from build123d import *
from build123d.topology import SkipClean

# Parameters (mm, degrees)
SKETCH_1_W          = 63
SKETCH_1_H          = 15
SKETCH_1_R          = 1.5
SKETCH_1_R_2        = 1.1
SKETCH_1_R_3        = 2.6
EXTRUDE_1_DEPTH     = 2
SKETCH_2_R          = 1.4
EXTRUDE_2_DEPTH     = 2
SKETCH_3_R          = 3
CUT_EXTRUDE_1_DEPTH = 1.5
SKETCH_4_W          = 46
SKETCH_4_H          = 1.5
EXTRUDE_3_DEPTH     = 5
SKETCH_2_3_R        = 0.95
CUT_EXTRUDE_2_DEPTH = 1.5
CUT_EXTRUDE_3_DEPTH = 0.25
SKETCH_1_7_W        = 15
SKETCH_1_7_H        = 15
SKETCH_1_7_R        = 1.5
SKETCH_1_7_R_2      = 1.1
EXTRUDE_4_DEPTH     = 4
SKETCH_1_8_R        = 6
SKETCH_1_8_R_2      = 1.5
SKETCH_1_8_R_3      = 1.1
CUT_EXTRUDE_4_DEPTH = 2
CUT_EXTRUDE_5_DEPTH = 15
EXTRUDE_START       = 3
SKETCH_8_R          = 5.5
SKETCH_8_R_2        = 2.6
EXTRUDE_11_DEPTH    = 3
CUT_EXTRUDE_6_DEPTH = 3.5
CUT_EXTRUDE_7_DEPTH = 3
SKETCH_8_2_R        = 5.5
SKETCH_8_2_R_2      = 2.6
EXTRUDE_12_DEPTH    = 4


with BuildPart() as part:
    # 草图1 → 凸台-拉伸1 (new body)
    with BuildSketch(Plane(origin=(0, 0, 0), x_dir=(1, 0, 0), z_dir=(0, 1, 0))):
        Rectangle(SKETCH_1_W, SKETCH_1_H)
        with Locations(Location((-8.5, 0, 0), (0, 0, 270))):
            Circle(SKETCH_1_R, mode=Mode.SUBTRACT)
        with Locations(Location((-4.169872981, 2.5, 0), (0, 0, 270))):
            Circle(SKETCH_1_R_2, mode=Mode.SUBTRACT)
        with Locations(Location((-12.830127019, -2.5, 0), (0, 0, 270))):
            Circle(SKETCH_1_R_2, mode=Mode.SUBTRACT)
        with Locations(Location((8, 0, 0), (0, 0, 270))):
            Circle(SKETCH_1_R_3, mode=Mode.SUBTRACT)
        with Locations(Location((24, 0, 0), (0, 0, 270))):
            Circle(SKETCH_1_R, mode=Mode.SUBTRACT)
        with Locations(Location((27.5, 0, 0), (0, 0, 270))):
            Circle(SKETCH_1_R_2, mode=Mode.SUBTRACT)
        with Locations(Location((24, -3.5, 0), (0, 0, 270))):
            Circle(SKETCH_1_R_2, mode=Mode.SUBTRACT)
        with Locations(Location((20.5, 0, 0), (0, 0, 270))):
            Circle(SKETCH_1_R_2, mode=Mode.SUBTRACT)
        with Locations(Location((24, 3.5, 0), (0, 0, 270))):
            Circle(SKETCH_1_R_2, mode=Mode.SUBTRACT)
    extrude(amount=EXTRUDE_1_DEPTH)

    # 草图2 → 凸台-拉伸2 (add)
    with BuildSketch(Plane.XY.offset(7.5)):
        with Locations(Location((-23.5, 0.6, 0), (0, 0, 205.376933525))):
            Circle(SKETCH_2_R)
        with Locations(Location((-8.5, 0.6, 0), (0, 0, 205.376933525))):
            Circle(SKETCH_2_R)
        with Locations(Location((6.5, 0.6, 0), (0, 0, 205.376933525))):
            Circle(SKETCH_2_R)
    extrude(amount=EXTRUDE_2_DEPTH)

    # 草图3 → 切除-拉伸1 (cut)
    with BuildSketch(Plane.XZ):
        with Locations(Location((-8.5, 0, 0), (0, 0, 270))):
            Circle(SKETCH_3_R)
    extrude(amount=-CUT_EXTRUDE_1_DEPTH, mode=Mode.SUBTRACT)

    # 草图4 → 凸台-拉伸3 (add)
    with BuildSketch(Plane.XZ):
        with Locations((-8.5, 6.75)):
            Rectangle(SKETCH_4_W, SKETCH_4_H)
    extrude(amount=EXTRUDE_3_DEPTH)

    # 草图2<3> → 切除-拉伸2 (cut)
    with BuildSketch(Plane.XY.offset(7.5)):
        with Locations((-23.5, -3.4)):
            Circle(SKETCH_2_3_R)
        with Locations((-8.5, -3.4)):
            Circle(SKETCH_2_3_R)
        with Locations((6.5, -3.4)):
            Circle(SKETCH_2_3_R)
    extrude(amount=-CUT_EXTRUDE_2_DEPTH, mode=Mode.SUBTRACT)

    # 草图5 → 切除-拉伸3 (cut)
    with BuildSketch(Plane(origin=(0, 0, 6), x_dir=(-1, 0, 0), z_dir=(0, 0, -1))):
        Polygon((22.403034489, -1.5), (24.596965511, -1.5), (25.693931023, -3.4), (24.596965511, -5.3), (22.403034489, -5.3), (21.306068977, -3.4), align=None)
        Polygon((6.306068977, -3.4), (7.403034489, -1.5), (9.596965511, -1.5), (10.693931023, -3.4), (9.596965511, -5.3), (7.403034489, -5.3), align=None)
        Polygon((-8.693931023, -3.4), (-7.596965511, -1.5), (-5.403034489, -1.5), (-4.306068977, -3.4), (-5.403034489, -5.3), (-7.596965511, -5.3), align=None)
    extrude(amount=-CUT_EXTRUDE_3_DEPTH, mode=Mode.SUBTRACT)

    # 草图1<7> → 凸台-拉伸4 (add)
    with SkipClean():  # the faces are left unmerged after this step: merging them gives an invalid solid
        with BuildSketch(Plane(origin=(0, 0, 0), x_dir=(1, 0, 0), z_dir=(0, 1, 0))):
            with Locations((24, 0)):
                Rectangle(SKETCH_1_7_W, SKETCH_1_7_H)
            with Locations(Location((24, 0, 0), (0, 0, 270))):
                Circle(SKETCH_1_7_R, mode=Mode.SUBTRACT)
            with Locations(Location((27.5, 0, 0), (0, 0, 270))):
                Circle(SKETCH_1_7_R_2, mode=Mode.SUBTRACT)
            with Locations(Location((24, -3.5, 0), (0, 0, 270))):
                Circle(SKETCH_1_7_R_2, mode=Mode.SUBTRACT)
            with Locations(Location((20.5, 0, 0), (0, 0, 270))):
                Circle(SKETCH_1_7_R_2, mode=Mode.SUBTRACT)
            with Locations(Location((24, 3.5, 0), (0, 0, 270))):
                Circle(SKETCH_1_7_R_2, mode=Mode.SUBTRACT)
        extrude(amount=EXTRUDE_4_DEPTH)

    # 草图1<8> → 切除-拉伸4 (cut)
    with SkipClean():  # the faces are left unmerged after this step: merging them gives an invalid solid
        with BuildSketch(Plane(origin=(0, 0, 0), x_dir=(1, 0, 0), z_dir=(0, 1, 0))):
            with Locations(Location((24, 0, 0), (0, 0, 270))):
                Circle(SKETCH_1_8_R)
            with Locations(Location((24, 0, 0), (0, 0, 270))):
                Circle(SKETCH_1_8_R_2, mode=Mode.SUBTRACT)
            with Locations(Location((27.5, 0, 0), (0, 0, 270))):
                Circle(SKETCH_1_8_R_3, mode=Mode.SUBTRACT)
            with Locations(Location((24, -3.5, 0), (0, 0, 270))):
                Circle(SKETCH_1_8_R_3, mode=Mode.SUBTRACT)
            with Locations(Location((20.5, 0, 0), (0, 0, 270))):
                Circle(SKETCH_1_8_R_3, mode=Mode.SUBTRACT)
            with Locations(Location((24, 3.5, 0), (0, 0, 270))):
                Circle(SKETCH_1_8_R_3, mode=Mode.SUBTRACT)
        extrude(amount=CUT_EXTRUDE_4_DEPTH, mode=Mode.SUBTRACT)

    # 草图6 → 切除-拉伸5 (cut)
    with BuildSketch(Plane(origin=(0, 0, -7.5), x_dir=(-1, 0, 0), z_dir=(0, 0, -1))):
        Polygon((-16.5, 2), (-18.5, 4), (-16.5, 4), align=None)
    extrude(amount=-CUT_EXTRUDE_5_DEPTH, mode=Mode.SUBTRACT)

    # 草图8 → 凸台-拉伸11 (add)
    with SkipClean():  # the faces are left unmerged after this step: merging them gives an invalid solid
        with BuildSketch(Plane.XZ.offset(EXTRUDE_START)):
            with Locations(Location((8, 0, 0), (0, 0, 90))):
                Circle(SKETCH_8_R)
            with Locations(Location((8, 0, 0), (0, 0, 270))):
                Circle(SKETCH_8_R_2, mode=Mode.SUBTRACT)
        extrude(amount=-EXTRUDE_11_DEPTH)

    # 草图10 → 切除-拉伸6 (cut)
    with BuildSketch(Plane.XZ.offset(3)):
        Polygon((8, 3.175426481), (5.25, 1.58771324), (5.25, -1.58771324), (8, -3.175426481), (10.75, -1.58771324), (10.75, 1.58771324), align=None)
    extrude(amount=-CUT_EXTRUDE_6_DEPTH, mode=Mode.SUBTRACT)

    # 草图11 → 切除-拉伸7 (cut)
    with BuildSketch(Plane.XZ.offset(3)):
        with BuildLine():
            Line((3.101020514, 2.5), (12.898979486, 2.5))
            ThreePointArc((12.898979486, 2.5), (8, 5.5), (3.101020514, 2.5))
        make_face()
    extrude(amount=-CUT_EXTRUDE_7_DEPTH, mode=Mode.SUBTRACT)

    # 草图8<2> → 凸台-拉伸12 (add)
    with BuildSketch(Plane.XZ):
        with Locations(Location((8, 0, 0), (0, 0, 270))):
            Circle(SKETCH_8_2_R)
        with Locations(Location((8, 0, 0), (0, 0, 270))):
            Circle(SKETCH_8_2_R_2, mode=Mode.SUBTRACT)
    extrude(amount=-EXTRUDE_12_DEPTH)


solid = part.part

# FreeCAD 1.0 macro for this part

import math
import FreeCAD as App
import Part
import Sketcher
Q = App.Units.Quantity

doc = App.newDocument("Part")
body = doc.addObject("PartDesign::Body", "Body")

sketch1 = doc.addObject("Sketcher::SketchObject", "Sketch")
body.addObject(sketch1)
sketch1.AttachmentSupport = (doc.XZ_Plane, [""])
sketch1.MapMode = "FlatFace"
sketch1.addGeometry([
    Part.LineSegment(App.Vector(-31.5, -7.5, 0), App.Vector(-31.5, 7.5, 0)),
    Part.LineSegment(App.Vector(-31.5, 7.5, 0), App.Vector(31.5, 7.5, 0)),
    Part.LineSegment(App.Vector(31.5, 7.5, 0), App.Vector(31.5, -7.5, 0)),
    Part.LineSegment(App.Vector(31.5, -7.5, 0), App.Vector(-31.5, -7.5, 0)),
    Part.Circle(App.Vector(-12.8, 2.5, 0), App.Vector(0, 0, 1), 1.1),
    Part.Circle(App.Vector(24, 3.5, 0), App.Vector(0, 0, 1), 1.1),
    Part.Circle(App.Vector(-8.5, 0, 0), App.Vector(0, 0, 1), 1.5),
    Part.Circle(App.Vector(-4.2, -2.5, 0), App.Vector(0, 0, 1), 1.1),
    Part.Circle(App.Vector(8, 0, 0), App.Vector(0, 0, 1), 2.6),
    Part.Circle(App.Vector(20.5, 0, 0), App.Vector(0, 0, 1), 1.1),
    Part.Circle(App.Vector(24, 0, 0), App.Vector(0, 0, 1), 1.5),
    Part.Circle(App.Vector(27.5, 0, 0), App.Vector(0, 0, 1), 1.1),
    Part.Circle(App.Vector(24, -3.5, 0), App.Vector(0, 0, 1), 1.1),
], False)
sketch1.addConstraint([
    Sketcher.Constraint("Coincident", 0, 2, 1, 1),
    Sketcher.Constraint("Coincident", 1, 2, 2, 1),
    Sketcher.Constraint("Coincident", 2, 2, 3, 1),
    Sketcher.Constraint("Coincident", 3, 2, 0, 1),
    Sketcher.Constraint("Vertical", 0),
    Sketcher.Constraint("Horizontal", 1),
    Sketcher.Constraint("Vertical", 2),
    Sketcher.Constraint("Horizontal", 3),
    Sketcher.Constraint("Equal", 4, 5),
    Sketcher.Constraint("Equal", 5, 7),
    Sketcher.Constraint("Equal", 7, 9),
    Sketcher.Constraint("Equal", 6, 10),
    Sketcher.Constraint("Equal", 9, 11),
    Sketcher.Constraint("Equal", 11, 12),
    Sketcher.Constraint("Symmetric", 0, 2, 2, 2, -1, 1),
    Sketcher.Constraint("Symmetric", 5, 3, 12, 3, -1),
    Sketcher.Constraint("PointOnObject", 6, 3, -1),
    Sketcher.Constraint("PointOnObject", 8, 3, -1),
    Sketcher.Constraint("PointOnObject", 9, 3, -1),
    Sketcher.Constraint("PointOnObject", 10, 3, -1),
    Sketcher.Constraint("PointOnObject", 11, 3, -1),
    Sketcher.Constraint("Vertical", 5, 3, 10, 3),
    Sketcher.Constraint("Diameter", 6, Q("3 mm")),
    Sketcher.Constraint("Diameter", 4, Q("2.2 mm")),
    Sketcher.Constraint("Diameter", 8, Q("5.2 mm")),
    Sketcher.Constraint("DistanceX", 1, 1, 1, 2, Q("63 mm")),
    Sketcher.Constraint("DistanceY", 0, 1, 0, 2, Q("15 mm")),
    Sketcher.Constraint("DistanceX", -1, 1, 5, 3, Q("24 mm")),
    Sketcher.Constraint("DistanceX", -1, 1, 8, 3, Q("8 mm")),
    Sketcher.Constraint("DistanceY", 4, 3, 5, 3, Q("1 mm")),
    Sketcher.Constraint("DistanceY", 7, 3, 4, 3, Q("5 mm")),
    Sketcher.Constraint("DistanceX", 6, 3, 9, 3, Q("29 mm")),
    Sketcher.Constraint("DistanceX", 9, 3, 11, 3, Q("7 mm")),
    Sketcher.Constraint("DistanceY", 12, 3, 5, 3, Q("7 mm")),
    Sketcher.Constraint("DistanceX", 0, 2, 6, 3, Q("23 mm")),
    Sketcher.Constraint("DistanceX", 4, 3, -1, 1, Q("12.830127 mm")),
    Sketcher.Constraint("DistanceX", 7, 3, -1, 1, Q("4.169873 mm")),
])
pad1 = doc.addObject("PartDesign::Pad", "Pad")
body.addObject(pad1)
pad1.Profile = sketch1
pad1.Length = 2
pad1.Reversed = True

sketch2 = doc.addObject("Sketcher::SketchObject", "Sketch001")
body.addObject(sketch2)
sketch2.AttachmentSupport = (doc.XY_Plane, [""])
sketch2.MapMode = "FlatFace"
sketch2.AttachmentOffset = App.Placement(App.Vector(0, 0, 7.5), App.Rotation())
sketch2.addGeometry([
    Part.Circle(App.Vector(-23.5, 0.6, 0), App.Vector(0, 0, 1), 1.4),
    Part.Circle(App.Vector(-8.5, 0.6, 0), App.Vector(0, 0, 1), 1.4),
    Part.Circle(App.Vector(6.5, 0.6, 0), App.Vector(0, 0, 1), 1.4),
], False)
sketch2.addConstraint([
    Sketcher.Constraint("Equal", 0, 1),
    Sketcher.Constraint("Equal", 1, 2),
    Sketcher.Constraint("Horizontal", 0, 3, 1, 3),
    Sketcher.Constraint("Horizontal", 1, 3, 2, 3),
    Sketcher.Constraint("Diameter", 0, Q("2.8 mm")),
    Sketcher.Constraint("DistanceX", 0, 3, 1, 3, Q("15 mm")),
    Sketcher.Constraint("DistanceX", 1, 3, 2, 3, Q("15 mm")),
    Sketcher.Constraint("DistanceX", 0, 3, -1, 1, Q("23.5 mm")),
    Sketcher.Constraint("DistanceY", -1, 1, 0, 3, Q("0.6 mm")),
])
pad2 = doc.addObject("PartDesign::Pad", "Pad001")
body.addObject(pad2)
pad2.Profile = sketch2
pad2.Length = 2

sketch3 = doc.addObject("Sketcher::SketchObject", "Sketch002")
body.addObject(sketch3)
sketch3.AttachmentSupport = (doc.XZ_Plane, [""])
sketch3.MapMode = "FlatFace"
sketch3.addGeometry(Part.Circle(App.Vector(-8.5, 0, 0), App.Vector(0, 0, 1), 3), False)
sketch3.addConstraint([
    Sketcher.Constraint("PointOnObject", 0, 3, -1),
    Sketcher.Constraint("Diameter", 0, Q("6 mm")),
    Sketcher.Constraint("DistanceX", 0, 3, -1, 1, Q("8.5 mm")),
])
pocket1 = doc.addObject("PartDesign::Pocket", "Pocket")
body.addObject(pocket1)
pocket1.Profile = sketch3
pocket1.Length = 1.5

sketch4 = doc.addObject("Sketcher::SketchObject", "Sketch003")
body.addObject(sketch4)
sketch4.AttachmentSupport = (doc.XZ_Plane, [""])
sketch4.MapMode = "FlatFace"
sketch4.addGeometry([
    Part.LineSegment(App.Vector(-31.5, 7.5, 0), App.Vector(-31.5, 6, 0)),
    Part.LineSegment(App.Vector(-31.5, 6, 0), App.Vector(14.5, 6, 0)),
    Part.LineSegment(App.Vector(14.5, 6, 0), App.Vector(14.5, 7.5, 0)),
    Part.LineSegment(App.Vector(14.5, 7.5, 0), App.Vector(-31.5, 7.5, 0)),
], False)
sketch4.addConstraint([
    Sketcher.Constraint("Coincident", 0, 2, 1, 1),
    Sketcher.Constraint("Coincident", 1, 2, 2, 1),
    Sketcher.Constraint("Coincident", 2, 2, 3, 1),
    Sketcher.Constraint("Coincident", 3, 2, 0, 1),
    Sketcher.Constraint("Vertical", 0),
    Sketcher.Constraint("Horizontal", 1),
    Sketcher.Constraint("Vertical", 2),
    Sketcher.Constraint("Horizontal", 3),
    Sketcher.Constraint("DistanceX", 1, 1, 1, 2, Q("46 mm")),
    Sketcher.Constraint("DistanceY", 0, 2, 0, 1, Q("1.5 mm")),
    Sketcher.Constraint("DistanceY", -1, 1, 0, 2, Q("6 mm")),
    Sketcher.Constraint("DistanceX", 0, 2, -1, 1, Q("31.5 mm")),
])
pad3 = doc.addObject("PartDesign::Pad", "Pad002")
body.addObject(pad3)
pad3.Profile = sketch4
pad3.Length = 5

sketch5 = doc.addObject("Sketcher::SketchObject", "Sketch004")
body.addObject(sketch5)
sketch5.AttachmentSupport = (doc.XY_Plane, [""])
sketch5.MapMode = "FlatFace"
sketch5.AttachmentOffset = App.Placement(App.Vector(0, 0, 7.5), App.Rotation())
sketch5.addGeometry([
    Part.Circle(App.Vector(-23.5, -3.4, 0), App.Vector(0, 0, 1), 0.9),
    Part.Circle(App.Vector(-8.5, -3.4, 0), App.Vector(0, 0, 1), 0.9),
    Part.Circle(App.Vector(6.5, -3.4, 0), App.Vector(0, 0, 1), 0.9),
], False)
sketch5.addConstraint([
    Sketcher.Constraint("Equal", 0, 1),
    Sketcher.Constraint("Equal", 1, 2),
    Sketcher.Constraint("Horizontal", 0, 3, 1, 3),
    Sketcher.Constraint("Horizontal", 1, 3, 2, 3),
    Sketcher.Constraint("Diameter", 0, Q("1.9 mm")),
    Sketcher.Constraint("DistanceX", 0, 3, 1, 3, Q("15 mm")),
    Sketcher.Constraint("DistanceX", 1, 3, 2, 3, Q("15 mm")),
    Sketcher.Constraint("DistanceX", 0, 3, -1, 1, Q("23.5 mm")),
    Sketcher.Constraint("DistanceY", 0, 3, -1, 1, Q("3.4 mm")),
])
pocket2 = doc.addObject("PartDesign::Pocket", "Pocket001")
body.addObject(pocket2)
pocket2.Profile = sketch5
pocket2.Length = 1.5

sketch6 = doc.addObject("Sketcher::SketchObject", "Sketch005")
body.addObject(sketch6)
sketch6.AttachmentSupport = (doc.XY_Plane, [""])
sketch6.MapMode = "FlatFace"
sketch6.AttachmentOffset = App.Placement(App.Vector(0, 0, 6), App.Rotation())
sketch6.addGeometry([
    Part.LineSegment(App.Vector(-24.6, -1.5, 0), App.Vector(-22.4, -1.5, 0)),
    Part.LineSegment(App.Vector(-22.4, -1.5, 0), App.Vector(-21.3, -3.4, 0)),
    Part.LineSegment(App.Vector(-21.3, -3.4, 0), App.Vector(-22.4, -5.3, 0)),
    Part.LineSegment(App.Vector(-22.4, -5.3, 0), App.Vector(-24.6, -5.3, 0)),
    Part.LineSegment(App.Vector(-24.6, -5.3, 0), App.Vector(-25.7, -3.4, 0)),
    Part.LineSegment(App.Vector(-25.7, -3.4, 0), App.Vector(-24.6, -1.5, 0)),
    Part.LineSegment(App.Vector(-7.4, -1.5, 0), App.Vector(-6.3, -3.4, 0)),
    Part.LineSegment(App.Vector(-6.3, -3.4, 0), App.Vector(-7.4, -5.3, 0)),
    Part.LineSegment(App.Vector(-7.4, -5.3, 0), App.Vector(-9.6, -5.3, 0)),
    Part.LineSegment(App.Vector(-9.6, -5.3, 0), App.Vector(-10.7, -3.4, 0)),
    Part.LineSegment(App.Vector(-10.7, -3.4, 0), App.Vector(-9.6, -1.5, 0)),
    Part.LineSegment(App.Vector(-9.6, -1.5, 0), App.Vector(-7.4, -1.5, 0)),
    Part.LineSegment(App.Vector(7.6, -1.5, 0), App.Vector(8.7, -3.4, 0)),
    Part.LineSegment(App.Vector(8.7, -3.4, 0), App.Vector(7.6, -5.3, 0)),
    Part.LineSegment(App.Vector(7.6, -5.3, 0), App.Vector(5.4, -5.3, 0)),
    Part.LineSegment(App.Vector(5.4, -5.3, 0), App.Vector(4.3, -3.4, 0)),
    Part.LineSegment(App.Vector(4.3, -3.4, 0), App.Vector(5.4, -1.5, 0)),
    Part.LineSegment(App.Vector(5.4, -1.5, 0), App.Vector(7.6, -1.5, 0)),
], False)
sketch6.addConstraint([
    Sketcher.Constraint("Coincident", 0, 2, 1, 1),
    Sketcher.Constraint("Coincident", 1, 2, 2, 1),
    Sketcher.Constraint("Coincident", 2, 2, 3, 1),
    Sketcher.Constraint("Coincident", 3, 2, 4, 1),
    Sketcher.Constraint("Coincident", 4, 2, 5, 1),
    Sketcher.Constraint("Coincident", 5, 2, 0, 1),
    Sketcher.Constraint("Coincident", 6, 2, 7, 1),
    Sketcher.Constraint("Coincident", 7, 2, 8, 1),
    Sketcher.Constraint("Coincident", 8, 2, 9, 1),
    Sketcher.Constraint("Coincident", 9, 2, 10, 1),
    Sketcher.Constraint("Coincident", 10, 2, 11, 1),
    Sketcher.Constraint("Coincident", 11, 2, 6, 1),
    Sketcher.Constraint("Coincident", 12, 2, 13, 1),
    Sketcher.Constraint("Coincident", 13, 2, 14, 1),
    Sketcher.Constraint("Coincident", 14, 2, 15, 1),
    Sketcher.Constraint("Coincident", 15, 2, 16, 1),
    Sketcher.Constraint("Coincident", 16, 2, 17, 1),
    Sketcher.Constraint("Coincident", 17, 2, 12, 1),
    Sketcher.Constraint("Horizontal", 0),
    Sketcher.Constraint("Horizontal", 3),
    Sketcher.Constraint("Horizontal", 8),
    Sketcher.Constraint("Horizontal", 11),
    Sketcher.Constraint("Horizontal", 14),
    Sketcher.Constraint("Horizontal", 17),
    Sketcher.Constraint("Parallel", 1, 4),
    Sketcher.Constraint("Parallel", 2, 5),
    Sketcher.Constraint("Parallel", 4, 6),
    Sketcher.Constraint("Parallel", 5, 7),
    Sketcher.Constraint("Parallel", 6, 9),
    Sketcher.Constraint("Parallel", 7, 10),
    Sketcher.Constraint("Parallel", 9, 12),
    Sketcher.Constraint("Parallel", 10, 13),
    Sketcher.Constraint("Parallel", 12, 15),
    Sketcher.Constraint("Parallel", 13, 16),
    Sketcher.Constraint("Horizontal", 1, 2, 4, 2),
    Sketcher.Constraint("Horizontal", 4, 2, 6, 2),
    Sketcher.Constraint("Horizontal", 3, 2, 7, 2),
    Sketcher.Constraint("Horizontal", 6, 2, 9, 2),
    Sketcher.Constraint("Horizontal", 5, 2, 10, 2),
    Sketcher.Constraint("Horizontal", 9, 2, 12, 2),
    Sketcher.Constraint("Horizontal", 8, 2, 13, 2),
    Sketcher.Constraint("Horizontal", 12, 2, 15, 2),
    Sketcher.Constraint("Horizontal", 11, 2, 16, 2),
    Sketcher.Constraint("Vertical", 0, 2, 2, 2),
    Sketcher.Constraint("Vertical", 3, 2, 5, 2),
    Sketcher.Constraint("Equal", 3, 8),
    Sketcher.Constraint("Equal", 11, 14),
    Sketcher.Constraint("Angle", 1, Q("-60 deg")),
    Sketcher.Constraint("DistanceX", 1, 2, 6, 2, Q("15 mm")),
    Sketcher.Constraint("DistanceX", 6, 2, 12, 2, Q("15 mm")),
    Sketcher.Constraint("DistanceY", 0, 2, -1, 1, Q("1.5 mm")),
    Sketcher.Constraint("DistanceY", 1, 2, -1, 1, Q("3.4 mm")),
    Sketcher.Constraint("DistanceX", 0, 1, 0, 2, Q("2.193931 mm")),
    Sketcher.Constraint("DistanceX", 1, 2, -1, 1, Q("21.306069 mm")),
])
pocket3 = doc.addObject("PartDesign::Pocket", "Pocket002")
body.addObject(pocket3)
pocket3.Profile = sketch6
pocket3.Length = 0.25
pocket3.Reversed = True

sketch7 = doc.addObject("Sketcher::SketchObject", "Sketch006")
body.addObject(sketch7)
sketch7.AttachmentSupport = (doc.XZ_Plane, [""])
sketch7.MapMode = "FlatFace"
sketch7.addGeometry([
    Part.LineSegment(App.Vector(16.5, -7.5, 0), App.Vector(16.5, 7.5, 0)),
    Part.LineSegment(App.Vector(16.5, 7.5, 0), App.Vector(31.5, 7.5, 0)),
    Part.LineSegment(App.Vector(31.5, 7.5, 0), App.Vector(31.5, -7.5, 0)),
    Part.LineSegment(App.Vector(31.5, -7.5, 0), App.Vector(16.5, -7.5, 0)),
    Part.Circle(App.Vector(24, 3.5, 0), App.Vector(0, 0, 1), 1.1),
    Part.Circle(App.Vector(20.5, 0, 0), App.Vector(0, 0, 1), 1.1),
    Part.Circle(App.Vector(24, 0, 0), App.Vector(0, 0, 1), 1.5),
    Part.Circle(App.Vector(27.5, 0, 0), App.Vector(0, 0, 1), 1.1),
    Part.Circle(App.Vector(24, -3.5, 0), App.Vector(0, 0, 1), 1.1),
], False)
sketch7.addConstraint([
    Sketcher.Constraint("Coincident", 0, 2, 1, 1),
    Sketcher.Constraint("Coincident", 1, 2, 2, 1),
    Sketcher.Constraint("Coincident", 2, 2, 3, 1),
    Sketcher.Constraint("Coincident", 3, 2, 0, 1),
    Sketcher.Constraint("Vertical", 0),
    Sketcher.Constraint("Horizontal", 1),
    Sketcher.Constraint("Vertical", 2),
    Sketcher.Constraint("Horizontal", 3),
    Sketcher.Constraint("Equal", 4, 5),
    Sketcher.Constraint("Equal", 5, 7),
    Sketcher.Constraint("Equal", 7, 8),
    Sketcher.Constraint("Symmetric", 4, 3, 8, 3, -1),
    Sketcher.Constraint("PointOnObject", 5, 3, -1),
    Sketcher.Constraint("PointOnObject", 6, 3, -1),
    Sketcher.Constraint("PointOnObject", 7, 3, -1),
    Sketcher.Constraint("Vertical", 4, 3, 6, 3),
    Sketcher.Constraint("Equal", 3, 0),
    Sketcher.Constraint("Diameter", 6, Q("3 mm")),
    Sketcher.Constraint("Diameter", 4, Q("2.2 mm")),
    Sketcher.Constraint("DistanceX", 1, 1, 1, 2, Q("15 mm")),
    Sketcher.Constraint("DistanceX", -1, 1, 4, 3, Q("24 mm")),
    Sketcher.Constraint("DistanceX", 5, 3, 7, 3, Q("7 mm")),
    Sketcher.Constraint("DistanceY", 8, 3, 4, 3, Q("7 mm")),
    Sketcher.Constraint("DistanceY", 4, 3, 0, 2, Q("4 mm")),
    Sketcher.Constraint("DistanceX", 0, 2, 5, 3, Q("4 mm")),
    Sketcher.Constraint("DistanceX", -1, 1, 5, 3, Q("20.5 mm")),
])
pad4 = doc.addObject("PartDesign::Pad", "Pad003")
body.addObject(pad4)
pad4.Profile = sketch7
pad4.Length = 4
pad4.Reversed = True

sketch8 = doc.addObject("Sketcher::SketchObject", "Sketch007")
body.addObject(sketch8)
sketch8.AttachmentSupport = (doc.XZ_Plane, [""])
sketch8.MapMode = "FlatFace"
sketch8.addGeometry([
    Part.Circle(App.Vector(24, 0, 0), App.Vector(0, 0, 1), 6),
    Part.Circle(App.Vector(20.5, 0, 0), App.Vector(0, 0, 1), 1.1),
    Part.Circle(App.Vector(24, -3.5, 0), App.Vector(0, 0, 1), 1.1),
    Part.Circle(App.Vector(24, 0, 0), App.Vector(0, 0, 1), 1.5),
    Part.Circle(App.Vector(24, 3.5, 0), App.Vector(0, 0, 1), 1.1),
    Part.Circle(App.Vector(27.5, 0, 0), App.Vector(0, 0, 1), 1.1),
], False)
sketch8.addConstraint([
    Sketcher.Constraint("Coincident", 3, 3, 0, 3),
    Sketcher.Constraint("Equal", 1, 2),
    Sketcher.Constraint("Equal", 2, 4),
    Sketcher.Constraint("Equal", 4, 5),
    Sketcher.Constraint("Symmetric", 2, 3, 4, 3, -1),
    Sketcher.Constraint("PointOnObject", 0, 3, -1),
    Sketcher.Constraint("PointOnObject", 1, 3, -1),
    Sketcher.Constraint("PointOnObject", 5, 3, -1),
    Sketcher.Constraint("Vertical", 0, 3, 2, 3),
    Sketcher.Constraint("Diameter", 0, Q("12 mm")),
    Sketcher.Constraint("Diameter", 3, Q("3 mm")),
    Sketcher.Constraint("Diameter", 1, Q("2.2 mm")),
    Sketcher.Constraint("DistanceX", -1, 1, 0, 3, Q("24 mm")),
    Sketcher.Constraint("DistanceY", 2, 3, 4, 3, Q("7 mm")),
    Sketcher.Constraint("DistanceX", 1, 3, 5, 3, Q("7 mm")),
    Sketcher.Constraint("DistanceX", -1, 1, 1, 3, Q("20.5 mm")),
])
pocket4 = doc.addObject("PartDesign::Pocket", "Pocket003")
body.addObject(pocket4)
pocket4.Profile = sketch8
pocket4.Length = 2

sketch9 = doc.addObject("Sketcher::SketchObject", "Sketch008")
body.addObject(sketch9)
sketch9.AttachmentSupport = (doc.XY_Plane, [""])
sketch9.MapMode = "FlatFace"
sketch9.AttachmentOffset = App.Placement(App.Vector(0, 0, -7.5), App.Rotation())
sketch9.addGeometry([
    Part.LineSegment(App.Vector(18.5, 4, 0), App.Vector(16.5, 2, 0)),
    Part.LineSegment(App.Vector(16.5, 2, 0), App.Vector(16.5, 4, 0)),
    Part.LineSegment(App.Vector(16.5, 4, 0), App.Vector(18.5, 4, 0)),
], False)
sketch9.addConstraint([
    Sketcher.Constraint("Coincident", 0, 2, 1, 1),
    Sketcher.Constraint("Coincident", 1, 2, 2, 1),
    Sketcher.Constraint("Coincident", 2, 2, 0, 1),
    Sketcher.Constraint("Vertical", 1),
    Sketcher.Constraint("Horizontal", 2),
    Sketcher.Constraint("Equal", 2, 1),
    Sketcher.Constraint("DistanceX", 2, 1, 2, 2, Q("2 mm")),
    Sketcher.Constraint("DistanceY", -1, 1, 0, 2, Q("2 mm")),
    Sketcher.Constraint("DistanceX", -1, 1, 0, 2, Q("16.5 mm")),
])
pocket5 = doc.addObject("PartDesign::Pocket", "Pocket004")
body.addObject(pocket5)
pocket5.Profile = sketch9
pocket5.Length = 15
pocket5.Reversed = True

sketch10 = doc.addObject("Sketcher::SketchObject", "Sketch009")
body.addObject(sketch10)
sketch10.AttachmentSupport = (doc.XZ_Plane, [""])
sketch10.MapMode = "FlatFace"
sketch10.AttachmentOffset = App.Placement(App.Vector(0, 0, 3), App.Rotation())
sketch10.addGeometry([
    Part.Circle(App.Vector(8, 0, 0), App.Vector(0, 0, 1), 5.5),
    Part.Circle(App.Vector(8, 0, 0), App.Vector(0, 0, 1), 2.6),
], False)
sketch10.addConstraint([
    Sketcher.Constraint("Coincident", 1, 3, 0, 3),
    Sketcher.Constraint("PointOnObject", 0, 3, -1),
    Sketcher.Constraint("Diameter", 0, Q("11 mm")),
    Sketcher.Constraint("Diameter", 1, Q("5.2 mm")),
    Sketcher.Constraint("DistanceX", -1, 1, 0, 3, Q("8 mm")),
])
pad5 = doc.addObject("PartDesign::Pad", "Pad004")
body.addObject(pad5)
pad5.Profile = sketch10
pad5.Length = 3
pad5.Reversed = True

sketch11 = doc.addObject("Sketcher::SketchObject", "Sketch010")
body.addObject(sketch11)
sketch11.AttachmentSupport = (doc.XZ_Plane, [""])
sketch11.MapMode = "FlatFace"
sketch11.AttachmentOffset = App.Placement(App.Vector(0, 0, 3), App.Rotation())
sketch11.addGeometry([
    Part.LineSegment(App.Vector(8, 3.2, 0), App.Vector(5.2, 1.6, 0)),
    Part.LineSegment(App.Vector(5.2, 1.6, 0), App.Vector(5.2, -1.6, 0)),
    Part.LineSegment(App.Vector(5.2, -1.6, 0), App.Vector(8, -3.2, 0)),
    Part.LineSegment(App.Vector(8, -3.2, 0), App.Vector(10.8, -1.6, 0)),
    Part.LineSegment(App.Vector(10.8, -1.6, 0), App.Vector(10.8, 1.6, 0)),
    Part.LineSegment(App.Vector(10.8, 1.6, 0), App.Vector(8, 3.2, 0)),
], False)
sketch11.addConstraint([
    Sketcher.Constraint("Coincident", 0, 2, 1, 1),
    Sketcher.Constraint("Coincident", 1, 2, 2, 1),
    Sketcher.Constraint("Coincident", 2, 2, 3, 1),
    Sketcher.Constraint("Coincident", 3, 2, 4, 1),
    Sketcher.Constraint("Coincident", 4, 2, 5, 1),
    Sketcher.Constraint("Coincident", 5, 2, 0, 1),
    Sketcher.Constraint("Vertical", 1),
    Sketcher.Constraint("Vertical", 4),
    Sketcher.Constraint("Symmetric", 2, 2, 5, 2, -1),
    Sketcher.Constraint("Parallel", 0, 3),
    Sketcher.Constraint("Parallel", 2, 5),
    Sketcher.Constraint("Horizontal", 1, 2, 3, 2),
    Sketcher.Constraint("Horizontal", 0, 2, 4, 2),
    Sketcher.Constraint("Angle", 0, Q("-150 deg")),
    Sketcher.Constraint("DistanceX", -1, 1, 2, 2, Q("8 mm")),
    Sketcher.Constraint("DistanceX", 1, 2, 3, 2, Q("5.5 mm")),
    Sketcher.Constraint("DistanceY", 1, 2, 1, 1, Q("3.175426 mm")),
])
pocket6 = doc.addObject("PartDesign::Pocket", "Pocket005")
body.addObject(pocket6)
pocket6.Profile = sketch11
pocket6.Length = 3.5

sketch12 = doc.addObject("Sketcher::SketchObject", "Sketch011")
body.addObject(sketch12)
sketch12.AttachmentSupport = (doc.XZ_Plane, [""])
sketch12.MapMode = "FlatFace"
sketch12.AttachmentOffset = App.Placement(App.Vector(0, 0, 3), App.Rotation())
sketch12.addGeometry([
    Part.LineSegment(App.Vector(3, 2, 0), App.Vector(13, 2, 0)),
    Part.ArcOfCircle(Part.Circle(App.Vector(8, 0, 0), App.Vector(0, 0, 1), 6), math.radians(27), math.radians(153)),
], False)
sketch12.addConstraint([
    Sketcher.Constraint("Coincident", 0, 1, 1, 2),
    Sketcher.Constraint("Coincident", 1, 1, 0, 2),
    Sketcher.Constraint("Horizontal", 0),
    Sketcher.Constraint("PointOnObject", 1, 3, -1),
    Sketcher.Constraint("Radius", 1, Q("5.5 mm")),
    Sketcher.Constraint("DistanceX", -1, 1, 1, 3, Q("8 mm")),
    Sketcher.Constraint("DistanceY", -1, 1, 0, 1, Q("2.5 mm")),
])
pocket7 = doc.addObject("PartDesign::Pocket", "Pocket006")
body.addObject(pocket7)
pocket7.Profile = sketch12
pocket7.Length = 3

sketch13 = doc.addObject("Sketcher::SketchObject", "Sketch012")
body.addObject(sketch13)
sketch13.AttachmentSupport = (doc.XZ_Plane, [""])
sketch13.MapMode = "FlatFace"
sketch13.addGeometry([
    Part.Circle(App.Vector(8, 0, 0), App.Vector(0, 0, 1), 5.5),
    Part.Circle(App.Vector(8, 0, 0), App.Vector(0, 0, 1), 2.6),
], False)
sketch13.addConstraint([
    Sketcher.Constraint("Coincident", 1, 3, 0, 3),
    Sketcher.Constraint("PointOnObject", 0, 3, -1),
    Sketcher.Constraint("Diameter", 0, Q("11 mm")),
    Sketcher.Constraint("Diameter", 1, Q("5.2 mm")),
    Sketcher.Constraint("DistanceX", -1, 1, 0, 3, Q("8 mm")),
])
pad6 = doc.addObject("PartDesign::Pad", "Pad005")
body.addObject(pad6)
pad6.Profile = sketch13
pad6.Length = 4
pad6.Reversed = True

doc.recompute()
